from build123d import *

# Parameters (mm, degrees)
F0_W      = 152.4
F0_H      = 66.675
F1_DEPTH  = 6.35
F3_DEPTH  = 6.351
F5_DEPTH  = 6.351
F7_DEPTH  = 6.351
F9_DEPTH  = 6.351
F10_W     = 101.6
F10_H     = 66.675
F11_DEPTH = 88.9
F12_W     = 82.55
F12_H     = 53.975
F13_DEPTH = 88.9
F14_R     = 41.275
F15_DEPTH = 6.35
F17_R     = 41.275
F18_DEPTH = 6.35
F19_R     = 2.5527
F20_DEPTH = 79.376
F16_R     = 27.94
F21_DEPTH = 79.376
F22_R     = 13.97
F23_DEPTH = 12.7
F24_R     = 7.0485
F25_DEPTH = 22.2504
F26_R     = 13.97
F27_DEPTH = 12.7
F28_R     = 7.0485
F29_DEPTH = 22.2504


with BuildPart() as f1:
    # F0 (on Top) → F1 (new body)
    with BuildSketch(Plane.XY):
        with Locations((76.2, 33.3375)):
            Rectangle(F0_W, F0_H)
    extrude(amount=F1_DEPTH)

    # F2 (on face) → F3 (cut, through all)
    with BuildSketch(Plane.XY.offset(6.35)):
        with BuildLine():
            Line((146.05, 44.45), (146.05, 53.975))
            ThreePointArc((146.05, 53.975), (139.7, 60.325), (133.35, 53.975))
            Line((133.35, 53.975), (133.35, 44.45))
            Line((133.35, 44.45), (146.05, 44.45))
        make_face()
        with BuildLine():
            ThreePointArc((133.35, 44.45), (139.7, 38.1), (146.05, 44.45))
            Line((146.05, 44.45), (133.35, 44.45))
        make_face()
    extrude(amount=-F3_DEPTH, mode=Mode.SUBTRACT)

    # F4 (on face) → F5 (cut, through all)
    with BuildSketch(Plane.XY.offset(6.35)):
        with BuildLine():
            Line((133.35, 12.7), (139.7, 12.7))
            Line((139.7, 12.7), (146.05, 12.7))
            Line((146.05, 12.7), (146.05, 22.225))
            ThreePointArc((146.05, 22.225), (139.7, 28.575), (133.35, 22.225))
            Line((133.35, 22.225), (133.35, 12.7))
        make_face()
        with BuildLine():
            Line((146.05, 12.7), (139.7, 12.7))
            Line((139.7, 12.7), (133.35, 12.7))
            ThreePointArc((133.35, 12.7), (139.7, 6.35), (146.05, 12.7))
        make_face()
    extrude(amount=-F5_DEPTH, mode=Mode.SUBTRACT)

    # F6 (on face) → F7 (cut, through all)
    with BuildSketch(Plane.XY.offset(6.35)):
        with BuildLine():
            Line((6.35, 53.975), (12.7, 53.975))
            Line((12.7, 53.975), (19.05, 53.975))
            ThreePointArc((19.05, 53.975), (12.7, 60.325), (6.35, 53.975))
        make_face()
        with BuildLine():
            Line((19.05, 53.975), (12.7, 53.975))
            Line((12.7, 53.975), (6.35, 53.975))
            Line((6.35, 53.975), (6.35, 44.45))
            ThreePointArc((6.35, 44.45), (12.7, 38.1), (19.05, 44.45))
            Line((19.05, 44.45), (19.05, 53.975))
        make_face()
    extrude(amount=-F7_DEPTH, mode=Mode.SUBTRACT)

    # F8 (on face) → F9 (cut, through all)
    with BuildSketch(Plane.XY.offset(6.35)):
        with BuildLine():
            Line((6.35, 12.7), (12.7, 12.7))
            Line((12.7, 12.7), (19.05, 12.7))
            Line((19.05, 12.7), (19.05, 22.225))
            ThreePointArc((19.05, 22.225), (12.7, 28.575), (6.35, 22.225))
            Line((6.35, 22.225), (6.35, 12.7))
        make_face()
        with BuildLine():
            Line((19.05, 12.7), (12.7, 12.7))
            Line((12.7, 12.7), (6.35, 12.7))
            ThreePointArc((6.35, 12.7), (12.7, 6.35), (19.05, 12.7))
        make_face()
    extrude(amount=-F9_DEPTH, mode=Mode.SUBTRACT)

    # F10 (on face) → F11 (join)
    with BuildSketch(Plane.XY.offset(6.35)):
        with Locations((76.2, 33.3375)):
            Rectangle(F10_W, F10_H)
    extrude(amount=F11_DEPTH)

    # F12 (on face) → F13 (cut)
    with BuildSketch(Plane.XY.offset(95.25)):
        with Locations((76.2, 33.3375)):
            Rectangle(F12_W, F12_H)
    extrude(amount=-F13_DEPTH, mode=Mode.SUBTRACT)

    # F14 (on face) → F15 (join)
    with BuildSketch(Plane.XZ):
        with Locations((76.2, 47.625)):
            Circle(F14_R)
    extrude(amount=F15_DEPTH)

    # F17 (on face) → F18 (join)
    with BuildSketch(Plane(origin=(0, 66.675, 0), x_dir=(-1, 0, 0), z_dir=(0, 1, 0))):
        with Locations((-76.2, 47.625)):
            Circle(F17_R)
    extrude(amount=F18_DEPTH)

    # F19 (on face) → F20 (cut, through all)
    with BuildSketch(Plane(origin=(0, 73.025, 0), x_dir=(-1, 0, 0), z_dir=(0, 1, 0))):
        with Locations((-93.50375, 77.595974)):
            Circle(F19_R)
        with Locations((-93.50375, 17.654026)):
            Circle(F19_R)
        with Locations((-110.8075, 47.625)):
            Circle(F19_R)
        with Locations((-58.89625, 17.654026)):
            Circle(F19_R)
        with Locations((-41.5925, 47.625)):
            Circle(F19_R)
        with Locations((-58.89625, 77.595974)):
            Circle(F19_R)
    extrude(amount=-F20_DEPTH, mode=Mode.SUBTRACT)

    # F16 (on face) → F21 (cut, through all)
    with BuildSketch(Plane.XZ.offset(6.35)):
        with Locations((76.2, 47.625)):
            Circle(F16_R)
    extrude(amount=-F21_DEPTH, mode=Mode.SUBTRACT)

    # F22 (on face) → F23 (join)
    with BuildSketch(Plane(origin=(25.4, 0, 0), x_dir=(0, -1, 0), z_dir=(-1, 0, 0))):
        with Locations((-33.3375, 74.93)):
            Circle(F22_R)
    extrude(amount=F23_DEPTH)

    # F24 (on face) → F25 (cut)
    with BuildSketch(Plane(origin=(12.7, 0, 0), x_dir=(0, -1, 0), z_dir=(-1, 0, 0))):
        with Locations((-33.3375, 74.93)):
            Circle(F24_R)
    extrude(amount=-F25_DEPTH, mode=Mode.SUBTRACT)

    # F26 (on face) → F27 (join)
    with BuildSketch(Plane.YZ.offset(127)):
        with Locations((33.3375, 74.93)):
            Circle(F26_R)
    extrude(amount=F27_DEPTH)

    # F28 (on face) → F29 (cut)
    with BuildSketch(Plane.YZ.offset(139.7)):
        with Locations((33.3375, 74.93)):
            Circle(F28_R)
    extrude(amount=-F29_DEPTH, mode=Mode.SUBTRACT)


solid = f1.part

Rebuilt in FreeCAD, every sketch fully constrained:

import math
import FreeCAD as App
import Part
import Sketcher
from FreeCAD import Vector
Q = App.Units.Quantity

doc = App.newDocument("Part")
params = doc.addObject("Spreadsheet::Sheet", "Params")
for row, (alias, value) in enumerate([
    ("sketch1_width", "6 in"),
    ("sketch1_height", "2.625 in"),
    ("pad1_length", "0.25 in"),
    ("sketch2_radius", "0.25 in"),
    ("sketch2_height", "0.375 in"),
    ("sketch3_radius", "0.25 in"),
    ("sketch3_height", "0.375 in"),
    ("sketch4_radius", "0.25 in"),
    ("sketch4_height", "0.375 in"),
    ("sketch5_radius", "0.25 in"),
    ("sketch5_height", "0.375 in"),
    ("sketch6_width", "4 in"),
    ("sketch6_height", "2.625 in"),
    ("pad2_length", "3.5 in"),
    ("sketch7_width", "3.25 in"),
    ("sketch7_height", "2.125 in"),
    ("pocket5_length", "3.5 in"),
    ("sketch8_diameter", "3.25 in"),
    ("pad3_length", "0.25 in"),
    ("sketch9_diameter", "3.25 in"),
    ("pad4_length", "0.25 in"),
    ("sketch10_diameter", "0.201 in"),
    ("sketch11_diameter", "2.2 in"),
    ("sketch12_diameter", "1.1 in"),
    ("pad5_length", "0.5 in"),
    ("sketch13_diameter", "0.555 in"),
    ("pocket8_length", "0.876 in"),
    ("sketch14_diameter", "1.1 in"),
    ("pad6_length", "0.5 in"),
    ("sketch15_diameter", "0.555 in"),
    ("pocket9_length", "0.876 in"),
], start=1):
    params.set(f"A{row}", alias)
    params.set(f"B{row}", "=" + value)
    params.setAlias(f"B{row}", alias)

body = doc.addObject("PartDesign::Body", "Body")

# Sketch on XY plane
sketch1 = body.newObject("Sketcher::SketchObject", "Sketch")
sketch1.AttachmentSupport = (doc.getObject("XY_Plane"), [""])
sketch1.MapMode = "FlatFace"
sketch1.addGeometry(Part.LineSegment(Vector(0, 67, 0), Vector(0, 0, 0)), False)
sketch1.addGeometry(Part.LineSegment(Vector(0, 0, 0), Vector(152, 0, 0)), False)
sketch1.addGeometry(Part.LineSegment(Vector(152, 0, 0), Vector(152, 67, 0)), False)
sketch1.addGeometry(Part.LineSegment(Vector(152, 67, 0), Vector(0, 67, 0)), False)
sketch1.addConstraint(Sketcher.Constraint("Coincident", 0, 2, 1, 1))
sketch1.addConstraint(Sketcher.Constraint("Coincident", 1, 2, 2, 1))
sketch1.addConstraint(Sketcher.Constraint("Coincident", 2, 2, 3, 1))
sketch1.addConstraint(Sketcher.Constraint("Coincident", 3, 2, 0, 1))
sketch1.addConstraint(Sketcher.Constraint("Vertical", 0))
sketch1.addConstraint(Sketcher.Constraint("Horizontal", 1))
sketch1.addConstraint(Sketcher.Constraint("Vertical", 2))
sketch1.addConstraint(Sketcher.Constraint("Horizontal", 3))
sketch1.addConstraint(Sketcher.Constraint("Coincident", 0, 2, -1, 1))
sketch1.addConstraint(Sketcher.Constraint("DistanceX", 1, 1, 1, 2, Q("6 in")))
sketch1.addConstraint(Sketcher.Constraint("DistanceY", 0, 2, 0, 1, Q("2.625 in")))
sketch1.setExpression("Constraints[9]", "Params.sketch1_width")
sketch1.setExpression("Constraints[10]", "Params.sketch1_height")
pad1 = body.newObject("PartDesign::Pad", "Pad")
pad1.Profile = sketch1
pad1.setExpression("Length", "Params.pad1_length")

# Sketch on XY plane
sketch2 = body.newObject("Sketcher::SketchObject", "Sketch001")
sketch2.AttachmentSupport = (doc.getObject("XY_Plane"), [""])
sketch2.MapMode = "FlatFace"
sketch2.AttachmentOffset = App.Placement(Vector(0, 0, 0.25 * 25.4), App.Rotation())
sketch2.addGeometry(Part.LineSegment(Vector(146, 44, 0), Vector(146, 54, 0)), False)
sketch2.addGeometry(Part.ArcOfCircle(Part.Circle(Vector(140, 54, 0), Vector(0, 0, 1), 6), math.radians(0), math.radians(180)), False)
sketch2.addGeometry(Part.LineSegment(Vector(133, 54, 0), Vector(133, 44, 0)), False)
sketch2.addGeometry(Part.ArcOfCircle(Part.Circle(Vector(140, 44, 0), Vector(0, 0, 1), 6), math.radians(180), math.radians(360)), False)
sketch2.addConstraint(Sketcher.Constraint("Tangent", 0, 2, 1, 1))
sketch2.addConstraint(Sketcher.Constraint("Tangent", 1, 2, 2, 1))
sketch2.addConstraint(Sketcher.Constraint("Tangent", 2, 2, 3, 1))
sketch2.addConstraint(Sketcher.Constraint("Tangent", 3, 2, 0, 1))
sketch2.addConstraint(Sketcher.Constraint("Vertical", 0))
sketch2.addConstraint(Sketcher.Constraint("Vertical", 2))
sketch2.addConstraint(Sketcher.Constraint("Radius", 1, Q("0.25 in")))
sketch2.addConstraint(Sketcher.Constraint("DistanceX", -1, 1, 1, 3, Q("5.5 in")))
sketch2.addConstraint(Sketcher.Constraint("DistanceY", 0, 1, 0, 2, Q("0.375 in")))
sketch2.addConstraint(Sketcher.Constraint("DistanceY", -1, 1, 3, 3, Q("1.75 in")))
sketch2.setExpression("Constraints[6]", "Params.sketch2_radius")
sketch2.setExpression("Constraints[8]", "Params.sketch2_height")
pocket1 = body.newObject("PartDesign::Pocket", "Pocket")
pocket1.Profile = sketch2
pocket1.Type = "ThroughAll"

# Sketch on XY plane
sketch3 = body.newObject("Sketcher::SketchObject", "Sketch002")
sketch3.AttachmentSupport = (doc.getObject("XY_Plane"), [""])
sketch3.MapMode = "FlatFace"
sketch3.AttachmentOffset = App.Placement(Vector(0, 0, 0.25 * 25.4), App.Rotation())
sketch3.addGeometry(Part.LineSegment(Vector(146, 13, 0), Vector(146, 22, 0)), False)
sketch3.addGeometry(Part.ArcOfCircle(Part.Circle(Vector(140, 22, 0), Vector(0, 0, 1), 6), math.radians(0), math.radians(180)), False)
sketch3.addGeometry(Part.LineSegment(Vector(133, 22, 0), Vector(133, 13, 0)), False)
sketch3.addGeometry(Part.ArcOfCircle(Part.Circle(Vector(140, 13, 0), Vector(0, 0, 1), 6), math.radians(180), math.radians(360)), False)
sketch3.addConstraint(Sketcher.Constraint("Tangent", 0, 2, 1, 1))
sketch3.addConstraint(Sketcher.Constraint("Tangent", 1, 2, 2, 1))
sketch3.addConstraint(Sketcher.Constraint("Tangent", 2, 2, 3, 1))
sketch3.addConstraint(Sketcher.Constraint("Tangent", 3, 2, 0, 1))
sketch3.addConstraint(Sketcher.Constraint("Vertical", 0))
sketch3.addConstraint(Sketcher.Constraint("Vertical", 2))
sketch3.addConstraint(Sketcher.Constraint("Radius", 1, Q("0.25 in")))
sketch3.addConstraint(Sketcher.Constraint("DistanceX", -1, 1, 1, 3, Q("5.5 in")))
sketch3.addConstraint(Sketcher.Constraint("DistanceY", -1, 1, 3, 3, Q("0.5 in")))
sketch3.addConstraint(Sketcher.Constraint("DistanceY", 0, 1, 0, 2, Q("0.375 in")))
sketch3.setExpression("Constraints[6]", "Params.sketch3_radius")
sketch3.setExpression("Constraints[9]", "Params.sketch3_height")
pocket2 = body.newObject("PartDesign::Pocket", "Pocket001")
pocket2.Profile = sketch3
pocket2.Type = "ThroughAll"

# Sketch on XY plane
sketch4 = body.newObject("Sketcher::SketchObject", "Sketch003")
sketch4.AttachmentSupport = (doc.getObject("XY_Plane"), [""])
sketch4.MapMode = "FlatFace"
sketch4.AttachmentOffset = App.Placement(Vector(0, 0, 0.25 * 25.4), App.Rotation())
sketch4.addGeometry(Part.ArcOfCircle(Part.Circle(Vector(13, 54, 0), Vector(0, 0, 1), 6), math.radians(0), math.radians(180)), False)
sketch4.addGeometry(Part.LineSegment(Vector(6, 54, 0), Vector(6, 44, 0)), False)
sketch4.addGeometry(Part.ArcOfCircle(Part.Circle(Vector(13, 44, 0), Vector(0, 0, 1), 6), math.radians(180), math.radians(360)), False)
sketch4.addGeometry(Part.LineSegment(Vector(19, 44, 0), Vector(19, 54, 0)), False)
sketch4.addConstraint(Sketcher.Constraint("Tangent", 0, 2, 1, 1))
sketch4.addConstraint(Sketcher.Constraint("Tangent", 1, 2, 2, 1))
sketch4.addConstraint(Sketcher.Constraint("Tangent", 2, 2, 3, 1))
sketch4.addConstraint(Sketcher.Constraint("Tangent", 3, 2, 0, 1))
sketch4.addConstraint(Sketcher.Constraint("Vertical", 1))
sketch4.addConstraint(Sketcher.Constraint("Vertical", 3))
sketch4.addConstraint(Sketcher.Constraint("Radius", 0, Q("0.25 in")))
sketch4.addConstraint(Sketcher.Constraint("DistanceX", -1, 1, 0, 3, Q("0.5 in")))
sketch4.addConstraint(Sketcher.Constraint("DistanceY", 1, 2, 1, 1, Q("0.375 in")))
sketch4.addConstraint(Sketcher.Constraint("DistanceY", -1, 1, 2, 3, Q("1.75 in")))
sketch4.setExpression("Constraints[6]", "Params.sketch4_radius")
sketch4.setExpression("Constraints[8]", "Params.sketch4_height")
pocket3 = body.newObject("PartDesign::Pocket", "Pocket002")
pocket3.Profile = sketch4
pocket3.Type = "ThroughAll"

# Sketch on XY plane
sketch5 = body.newObject("Sketcher::SketchObject", "Sketch004")
sketch5.AttachmentSupport = (doc.getObject("XY_Plane"), [""])
sketch5.MapMode = "FlatFace"
sketch5.AttachmentOffset = App.Placement(Vector(0, 0, 0.25 * 25.4), App.Rotation())
sketch5.addGeometry(Part.LineSegment(Vector(19, 13, 0), Vector(19, 22, 0)), False)
sketch5.addGeometry(Part.ArcOfCircle(Part.Circle(Vector(13, 22, 0), Vector(0, 0, 1), 6), math.radians(0), math.radians(180)), False)
sketch5.addGeometry(Part.LineSegment(Vector(6, 22, 0), Vector(6, 13, 0)), False)
sketch5.addGeometry(Part.ArcOfCircle(Part.Circle(Vector(13, 13, 0), Vector(0, 0, 1), 6), math.radians(180), math.radians(360)), False)
sketch5.addConstraint(Sketcher.Constraint("Tangent", 0, 2, 1, 1))
sketch5.addConstraint(Sketcher.Constraint("Tangent", 1, 2, 2, 1))
sketch5.addConstraint(Sketcher.Constraint("Tangent", 2, 2, 3, 1))
sketch5.addConstraint(Sketcher.Constraint("Tangent", 3, 2, 0, 1))
sketch5.addConstraint(Sketcher.Constraint("Vertical", 0))
sketch5.addConstraint(Sketcher.Constraint("Vertical", 2))
sketch5.addConstraint(Sketcher.Constraint("Radius", 1, Q("0.25 in")))
sketch5.addConstraint(Sketcher.Constraint("DistanceX", -1, 1, 1, 3, Q("0.5 in")))
sketch5.addConstraint(Sketcher.Constraint("DistanceY", -1, 1, 3, 3, Q("0.5 in")))
sketch5.addConstraint(Sketcher.Constraint("DistanceY", 0, 1, 0, 2, Q("0.375 in")))
sketch5.setExpression("Constraints[6]", "Params.sketch5_radius")
sketch5.setExpression("Constraints[9]", "Params.sketch5_height")
pocket4 = body.newObject("PartDesign::Pocket", "Pocket003")
pocket4.Profile = sketch5
pocket4.Type = "ThroughAll"

# Sketch on XY plane
sketch6 = body.newObject("Sketcher::SketchObject", "Sketch005")
sketch6.AttachmentSupport = (doc.getObject("XY_Plane"), [""])
sketch6.MapMode = "FlatFace"
sketch6.AttachmentOffset = App.Placement(Vector(0, 0, 0.25 * 25.4), App.Rotation())
sketch6.addGeometry(Part.LineSegment(Vector(25, 67, 0), Vector(25, 0, 0)), False)
sketch6.addGeometry(Part.LineSegment(Vector(25, 0, 0), Vector(127, 0, 0)), False)
sketch6.addGeometry(Part.LineSegment(Vector(127, 0, 0), Vector(127, 67, 0)), False)
sketch6.addGeometry(Part.LineSegment(Vector(127, 67, 0), Vector(25, 67, 0)), False)
sketch6.addConstraint(Sketcher.Constraint("Coincident", 0, 2, 1, 1))
sketch6.addConstraint(Sketcher.Constraint("Coincident", 1, 2, 2, 1))
sketch6.addConstraint(Sketcher.Constraint("Coincident", 2, 2, 3, 1))
sketch6.addConstraint(Sketcher.Constraint("Coincident", 3, 2, 0, 1))
sketch6.addConstraint(Sketcher.Constraint("Vertical", 0))
sketch6.addConstraint(Sketcher.Constraint("Horizontal", 1))
sketch6.addConstraint(Sketcher.Constraint("Vertical", 2))
sketch6.addConstraint(Sketcher.Constraint("Horizontal", 3))
sketch6.addConstraint(Sketcher.Constraint("PointOnObject", 0, 2, -1))
sketch6.addConstraint(Sketcher.Constraint("DistanceX", 1, 1, 1, 2, Q("4 in")))
sketch6.addConstraint(Sketcher.Constraint("DistanceX", -1, 1, 0, 2, Q("1 in")))
sketch6.addConstraint(Sketcher.Constraint("DistanceY", 0, 2, 0, 1, Q("2.625 in")))
sketch6.setExpression("Constraints[9]", "Params.sketch6_width")
sketch6.setExpression("Constraints[11]", "Params.sketch6_height")
pad2 = body.newObject("PartDesign::Pad", "Pad001")
pad2.Profile = sketch6
pad2.setExpression("Length", "Params.pad2_length")

# Sketch on XY plane
sketch7 = body.newObject("Sketcher::SketchObject", "Sketch006")
sketch7.AttachmentSupport = (doc.getObject("XY_Plane"), [""])
sketch7.MapMode = "FlatFace"
sketch7.AttachmentOffset = App.Placement(Vector(0, 0, 3.75 * 25.4), App.Rotation())
sketch7.addGeometry(Part.LineSegment(Vector(35, 60, 0), Vector(35, 6, 0)), False)
sketch7.addGeometry(Part.LineSegment(Vector(35, 6, 0), Vector(117, 6, 0)), False)
sketch7.addGeometry(Part.LineSegment(Vector(117, 6, 0), Vector(117, 60, 0)), False)
sketch7.addGeometry(Part.LineSegment(Vector(117, 60, 0), Vector(35, 60, 0)), False)
sketch7.addConstraint(Sketcher.Constraint("Coincident", 0, 2, 1, 1))
sketch7.addConstraint(Sketcher.Constraint("Coincident", 1, 2, 2, 1))
sketch7.addConstraint(Sketcher.Constraint("Coincident", 2, 2, 3, 1))
sketch7.addConstraint(Sketcher.Constraint("Coincident", 3, 2, 0, 1))
sketch7.addConstraint(Sketcher.Constraint("Vertical", 0))
sketch7.addConstraint(Sketcher.Constraint("Horizontal", 1))
sketch7.addConstraint(Sketcher.Constraint("Vertical", 2))
sketch7.addConstraint(Sketcher.Constraint("Horizontal", 3))
sketch7.addConstraint(Sketcher.Constraint("DistanceX", 1, 1, 1, 2, Q("3.25 in")))
sketch7.addConstraint(Sketcher.Constraint("DistanceY", 0, 2, 0, 1, Q("2.125 in")))
sketch7.addConstraint(Sketcher.Constraint("DistanceY", -1, 1, 0, 2, Q("0.25 in")))
sketch7.addConstraint(Sketcher.Constraint("DistanceX", -1, 1, 0, 2, Q("1.375 in")))
sketch7.setExpression("Constraints[8]", "Params.sketch7_width")
sketch7.setExpression("Constraints[9]", "Params.sketch7_height")
pocket5 = body.newObject("PartDesign::Pocket", "Pocket004")
pocket5.Profile = sketch7
pocket5.setExpression("Length", "Params.pocket5_length")

# Sketch on XZ plane
sketch8 = body.newObject("Sketcher::SketchObject", "Sketch007")
sketch8.AttachmentSupport = (doc.getObject("XZ_Plane"), [""])
sketch8.MapMode = "FlatFace"
sketch8.addGeometry(Part.Circle(Vector(76, 48, 0), Vector(0, 0, 1), 41), False)
sketch8.addConstraint(Sketcher.Constraint("Diameter", 0, Q("3.25 in")))
sketch8.addConstraint(Sketcher.Constraint("DistanceX", -1, 1, 0, 3, Q("3 in")))
sketch8.addConstraint(Sketcher.Constraint("DistanceY", -1, 1, 0, 3, Q("1.875 in")))
sketch8.setExpression("Constraints[0]", "Params.sketch8_diameter")
pad3 = body.newObject("PartDesign::Pad", "Pad002")
pad3.Profile = sketch8
pad3.setExpression("Length", "Params.pad3_length")

# Sketch on XZ plane
sketch9 = body.newObject("Sketcher::SketchObject", "Sketch008")
sketch9.AttachmentSupport = (doc.getObject("XZ_Plane"), [""])
sketch9.MapMode = "FlatFace"
sketch9.AttachmentOffset = App.Placement(Vector(0, 0, -2.625 * 25.4), App.Rotation())
sketch9.addGeometry(Part.Circle(Vector(76, 48, 0), Vector(0, 0, 1), 41), False)
sketch9.addConstraint(Sketcher.Constraint("Diameter", 0, Q("3.25 in")))
sketch9.addConstraint(Sketcher.Constraint("DistanceX", -1, 1, 0, 3, Q("3 in")))
sketch9.addConstraint(Sketcher.Constraint("DistanceY", -1, 1, 0, 3, Q("1.875 in")))
sketch9.setExpression("Constraints[0]", "Params.sketch9_diameter")
pad4 = body.newObject("PartDesign::Pad", "Pad003")
pad4.Profile = sketch9
pad4.setExpression("Length", "Params.pad4_length")
pad4.Reversed = True

# Sketch on XZ plane
sketch10 = body.newObject("Sketcher::SketchObject", "Sketch009")
sketch10.AttachmentSupport = (doc.getObject("XZ_Plane"), [""])
sketch10.MapMode = "FlatFace"
sketch10.AttachmentOffset = App.Placement(Vector(0, 0, -2.875 * 25.4), App.Rotation())
sketch10.addGeometry(Part.Circle(Vector(93.5, 77.6, 0), Vector(0, 0, 1), 2.6), False)
sketch10.addGeometry(Part.Circle(Vector(93.5, 17.7, 0), Vector(0, 0, 1), 2.6), False)
sketch10.addGeometry(Part.Circle(Vector(110.8, 47.6, 0), Vector(0, 0, 1), 2.6), False)
sketch10.addGeometry(Part.Circle(Vector(58.9, 17.7, 0), Vector(0, 0, 1), 2.6), False)
sketch10.addGeometry(Part.Circle(Vector(41.6, 47.6, 0), Vector(0, 0, 1), 2.6), False)
sketch10.addGeometry(Part.Circle(Vector(58.9, 77.6, 0), Vector(0, 0, 1), 2.6), False)
sketch10.addConstraint(Sketcher.Constraint("Equal", 0, 1))
sketch10.addConstraint(Sketcher.Constraint("Equal", 1, 2))
sketch10.addConstraint(Sketcher.Constraint("Equal", 2, 3))
sketch10.addConstraint(Sketcher.Constraint("Equal", 3, 4))
sketch10.addConstraint(Sketcher.Constraint("Equal", 4, 5))
sketch10.addConstraint(Sketcher.Constraint("Horizontal", 1, 3, 3, 3))
sketch10.addConstraint(Sketcher.Constraint("Horizontal", 2, 3, 4, 3))
sketch10.addConstraint(Sketcher.Constraint("Horizontal", 0, 3, 5, 3))
sketch10.addConstraint(Sketcher.Constraint("Vertical", 0, 3, 1, 3))
sketch10.addConstraint(Sketcher.Constraint("Vertical", 3, 3, 5, 3))
sketch10.addConstraint(Sketcher.Constraint("Diameter", 0, Q("0.201 in")))
sketch10.addConstraint(Sketcher.Constraint("DistanceY", -1, 1, 2, 3, Q("1.875 in")))
sketch10.addConstraint(Sketcher.Constraint("DistanceX", 4, 3, 2, 3, Q("2.725 in")))
sketch10.addConstraint(Sketcher.Constraint("DistanceX", -1, 1, 2, 3, Q("4.3625 in")))
sketch10.addConstraint(Sketcher.Constraint("DistanceX", 3, 3, 1, 3, Q("1.3625 in")))
sketch10.addConstraint(Sketcher.Constraint("DistanceX", -1, 1, 0, 3, Q("93.50375 mm")))
sketch10.addConstraint(Sketcher.Constraint("DistanceY", -1, 1, 0, 3, Q("77.595974 mm")))
sketch10.addConstraint(Sketcher.Constraint("DistanceY", -1, 1, 1, 3, Q("17.654026 mm")))
sketch10.setExpression("Constraints[10]", "Params.sketch10_diameter")
pocket6 = body.newObject("PartDesign::Pocket", "Pocket005")
pocket6.Profile = sketch10
pocket6.Type = "ThroughAll"
pocket6.Reversed = True

# Sketch on XZ plane
sketch11 = body.newObject("Sketcher::SketchObject", "Sketch010")
sketch11.AttachmentSupport = (doc.getObject("XZ_Plane"), [""])
sketch11.MapMode = "FlatFace"
sketch11.AttachmentOffset = App.Placement(Vector(0, 0, 0.25 * 25.4), App.Rotation())
sketch11.addGeometry(Part.Circle(Vector(76, 48, 0), Vector(0, 0, 1), 28), False)
sketch11.addConstraint(Sketcher.Constraint("Diameter", 0, Q("2.2 in")))
sketch11.addConstraint(Sketcher.Constraint("DistanceX", -1, 1, 0, 3, Q("3 in")))
sketch11.addConstraint(Sketcher.Constraint("DistanceY", -1, 1, 0, 3, Q("1.875 in")))
sketch11.setExpression("Constraints[0]", "Params.sketch11_diameter")
pocket7 = body.newObject("PartDesign::Pocket", "Pocket006")
pocket7.Profile = sketch11
pocket7.Type = "ThroughAll"

# Sketch on YZ plane
sketch12 = body.newObject("Sketcher::SketchObject", "Sketch011")
sketch12.AttachmentSupport = (doc.getObject("YZ_Plane"), [""])
sketch12.MapMode = "FlatFace"
sketch12.AttachmentOffset = App.Placement(Vector(0, 0, 1 * 25.4), App.Rotation())
sketch12.addGeometry(Part.Circle(Vector(33, 75, 0), Vector(0, 0, 1), 14), False)
sketch12.addConstraint(Sketcher.Constraint("Diameter", 0, Q("1.1 in")))
sketch12.addConstraint(Sketcher.Constraint("DistanceY", -1, 1, 0, 3, Q("2.95 in")))
sketch12.addConstraint(Sketcher.Constraint("DistanceX", -1, 1, 0, 3, Q("1.3125 in")))
sketch12.setExpression("Constraints[0]", "Params.sketch12_diameter")
pad5 = body.newObject("PartDesign::Pad", "Pad004")
pad5.Profile = sketch12
pad5.setExpression("Length", "Params.pad5_length")
pad5.Reversed = True

# Sketch on YZ plane
sketch13 = body.newObject("Sketcher::SketchObject", "Sketch012")
sketch13.AttachmentSupport = (doc.getObject("YZ_Plane"), [""])
sketch13.MapMode = "FlatFace"
sketch13.AttachmentOffset = App.Placement(Vector(0, 0, 0.5 * 25.4), App.Rotation())
sketch13.addGeometry(Part.Circle(Vector(33, 75, 0), Vector(0, 0, 1), 7), False)
sketch13.addConstraint(Sketcher.Constraint("Diameter", 0, Q("0.555 in")))
sketch13.addConstraint(Sketcher.Constraint("DistanceY", -1, 1, 0, 3, Q("2.95 in")))
sketch13.addConstraint(Sketcher.Constraint("DistanceX", -1, 1, 0, 3, Q("1.3125 in")))
sketch13.setExpression("Constraints[0]", "Params.sketch13_diameter")
pocket8 = body.newObject("PartDesign::Pocket", "Pocket007")
pocket8.Profile = sketch13
pocket8.setExpression("Length", "Params.pocket8_length")
pocket8.Reversed = True

# Sketch on YZ plane
sketch14 = body.newObject("Sketcher::SketchObject", "Sketch013")
sketch14.AttachmentSupport = (doc.getObject("YZ_Plane"), [""])
sketch14.MapMode = "FlatFace"
sketch14.AttachmentOffset = App.Placement(Vector(0, 0, 5 * 25.4), App.Rotation())
sketch14.addGeometry(Part.Circle(Vector(33, 75, 0), Vector(0, 0, 1), 14), False)
sketch14.addConstraint(Sketcher.Constraint("Diameter", 0, Q("1.1 in")))
sketch14.addConstraint(Sketcher.Constraint("DistanceY", -1, 1, 0, 3, Q("2.95 in")))
sketch14.addConstraint(Sketcher.Constraint("DistanceX", -1, 1, 0, 3, Q("1.3125 in")))
sketch14.setExpression("Constraints[0]", "Params.sketch14_diameter")
pad6 = body.newObject("PartDesign::Pad", "Pad005")
pad6.Profile = sketch14
pad6.setExpression("Length", "Params.pad6_length")

# Sketch on YZ plane
sketch15 = body.newObject("Sketcher::SketchObject", "Sketch014")
sketch15.AttachmentSupport = (doc.getObject("YZ_Plane"), [""])
sketch15.MapMode = "FlatFace"
sketch15.AttachmentOffset = App.Placement(Vector(0, 0, 5.5 * 25.4), App.Rotation())
sketch15.addGeometry(Part.Circle(Vector(33, 75, 0), Vector(0, 0, 1), 7), False)
sketch15.addConstraint(Sketcher.Constraint("Diameter", 0, Q("0.555 in")))
sketch15.addConstraint(Sketcher.Constraint("DistanceY", -1, 1, 0, 3, Q("2.95 in")))
sketch15.addConstraint(Sketcher.Constraint("DistanceX", -1, 1, 0, 3, Q("1.3125 in")))
sketch15.setExpression("Constraints[0]", "Params.sketch15_diameter")
pocket9 = body.newObject("PartDesign::Pocket", "Pocket008")
pocket9.Profile = sketch15
pocket9.setExpression("Length", "Params.pocket9_length")

doc.recompute()
